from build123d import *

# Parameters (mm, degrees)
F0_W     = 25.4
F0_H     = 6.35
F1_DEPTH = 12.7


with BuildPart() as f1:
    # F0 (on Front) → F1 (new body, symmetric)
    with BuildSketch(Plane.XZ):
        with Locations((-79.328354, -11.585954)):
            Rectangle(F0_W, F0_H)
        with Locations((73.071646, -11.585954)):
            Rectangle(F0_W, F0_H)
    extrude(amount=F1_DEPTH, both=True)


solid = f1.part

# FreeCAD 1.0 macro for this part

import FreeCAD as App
import Part
import Sketcher
Q = App.Units.Quantity


def add_polygon(sketch, points):
    """Adds a closed chain of lines whose ends are joined by coincident constraints."""
    first, n = sketch.GeometryCount, len(points)
    for a, b in zip(points, points[1:] + points[:1]):
        sketch.addGeometry(Part.LineSegment(App.Vector(*a, 0), App.Vector(*b, 0)), False)
    for i in range(n):
        sketch.addConstraint(Sketcher.Constraint("Coincident", first + i, 2, first + (i + 1) % n, 1))

doc = App.newDocument("Part")
params = doc.addObject("Spreadsheet::Sheet", "Params")
for row, (alias, value) in enumerate([
    ("sketch1_width", "1 in"),
    ("sketch1_height", "0.25 in"),
    ("pad1_length", "1 in"),
], start=1):
    params.set(f"A{row}", alias)
    params.set(f"B{row}", "=" + value)
    params.setAlias(f"B{row}", alias)

body = doc.addObject("PartDesign::Body", "Body")
body.AllowCompound = True

sketch1 = body.newObject("Sketcher::SketchObject", "Sketch")
sketch1.AttachmentSupport = (doc.getObject("XZ_Plane"), [""])
sketch1.MapMode = "FlatFace"
add_polygon(sketch1, [(-92, -8), (-92, -15), (-67, -15), (-67, -8)])
add_polygon(sketch1, [(60, -8), (60, -15), (86, -15), (86, -8)])
sketch1.addConstraint([
    Sketcher.Constraint("Vertical", 0),
    Sketcher.Constraint("Horizontal", 1),
    Sketcher.Constraint("Vertical", 2),
    Sketcher.Constraint("Horizontal", 3),
    Sketcher.Constraint("Vertical", 4),
    Sketcher.Constraint("Horizontal", 5),
    Sketcher.Constraint("Vertical", 6),
    Sketcher.Constraint("Horizontal", 7),
    Sketcher.Constraint("Horizontal", 1, 2, 4, 2),
    Sketcher.Constraint("Horizontal", 3, 2, 6, 2),
    Sketcher.Constraint("Equal", 3, 5),
    Sketcher.Constraint("DistanceX", 1, 1, 1, 2, Q("1 in")),
    Sketcher.Constraint("DistanceX", 1, 2, 4, 2, Q("5 in")),
    Sketcher.Constraint("DistanceY", 0, 2, 0, 1, Q("0.25 in")),
    Sketcher.Constraint("DistanceX", 0, 2, -1, 1, 92.028354),
    Sketcher.Constraint("DistanceY", 0, 2, -1, 1, 14.760954),
])
sketch1.setExpression("Constraints[19]", "Params.sketch1_width")
sketch1.setExpression("Constraints[21]", "Params.sketch1_height")
pad1 = body.newObject("PartDesign::Pad", "Pad")
pad1.Profile = sketch1
pad1.setExpression("Length", "Params.pad1_length")
pad1.Midplane = True

doc.recompute()
